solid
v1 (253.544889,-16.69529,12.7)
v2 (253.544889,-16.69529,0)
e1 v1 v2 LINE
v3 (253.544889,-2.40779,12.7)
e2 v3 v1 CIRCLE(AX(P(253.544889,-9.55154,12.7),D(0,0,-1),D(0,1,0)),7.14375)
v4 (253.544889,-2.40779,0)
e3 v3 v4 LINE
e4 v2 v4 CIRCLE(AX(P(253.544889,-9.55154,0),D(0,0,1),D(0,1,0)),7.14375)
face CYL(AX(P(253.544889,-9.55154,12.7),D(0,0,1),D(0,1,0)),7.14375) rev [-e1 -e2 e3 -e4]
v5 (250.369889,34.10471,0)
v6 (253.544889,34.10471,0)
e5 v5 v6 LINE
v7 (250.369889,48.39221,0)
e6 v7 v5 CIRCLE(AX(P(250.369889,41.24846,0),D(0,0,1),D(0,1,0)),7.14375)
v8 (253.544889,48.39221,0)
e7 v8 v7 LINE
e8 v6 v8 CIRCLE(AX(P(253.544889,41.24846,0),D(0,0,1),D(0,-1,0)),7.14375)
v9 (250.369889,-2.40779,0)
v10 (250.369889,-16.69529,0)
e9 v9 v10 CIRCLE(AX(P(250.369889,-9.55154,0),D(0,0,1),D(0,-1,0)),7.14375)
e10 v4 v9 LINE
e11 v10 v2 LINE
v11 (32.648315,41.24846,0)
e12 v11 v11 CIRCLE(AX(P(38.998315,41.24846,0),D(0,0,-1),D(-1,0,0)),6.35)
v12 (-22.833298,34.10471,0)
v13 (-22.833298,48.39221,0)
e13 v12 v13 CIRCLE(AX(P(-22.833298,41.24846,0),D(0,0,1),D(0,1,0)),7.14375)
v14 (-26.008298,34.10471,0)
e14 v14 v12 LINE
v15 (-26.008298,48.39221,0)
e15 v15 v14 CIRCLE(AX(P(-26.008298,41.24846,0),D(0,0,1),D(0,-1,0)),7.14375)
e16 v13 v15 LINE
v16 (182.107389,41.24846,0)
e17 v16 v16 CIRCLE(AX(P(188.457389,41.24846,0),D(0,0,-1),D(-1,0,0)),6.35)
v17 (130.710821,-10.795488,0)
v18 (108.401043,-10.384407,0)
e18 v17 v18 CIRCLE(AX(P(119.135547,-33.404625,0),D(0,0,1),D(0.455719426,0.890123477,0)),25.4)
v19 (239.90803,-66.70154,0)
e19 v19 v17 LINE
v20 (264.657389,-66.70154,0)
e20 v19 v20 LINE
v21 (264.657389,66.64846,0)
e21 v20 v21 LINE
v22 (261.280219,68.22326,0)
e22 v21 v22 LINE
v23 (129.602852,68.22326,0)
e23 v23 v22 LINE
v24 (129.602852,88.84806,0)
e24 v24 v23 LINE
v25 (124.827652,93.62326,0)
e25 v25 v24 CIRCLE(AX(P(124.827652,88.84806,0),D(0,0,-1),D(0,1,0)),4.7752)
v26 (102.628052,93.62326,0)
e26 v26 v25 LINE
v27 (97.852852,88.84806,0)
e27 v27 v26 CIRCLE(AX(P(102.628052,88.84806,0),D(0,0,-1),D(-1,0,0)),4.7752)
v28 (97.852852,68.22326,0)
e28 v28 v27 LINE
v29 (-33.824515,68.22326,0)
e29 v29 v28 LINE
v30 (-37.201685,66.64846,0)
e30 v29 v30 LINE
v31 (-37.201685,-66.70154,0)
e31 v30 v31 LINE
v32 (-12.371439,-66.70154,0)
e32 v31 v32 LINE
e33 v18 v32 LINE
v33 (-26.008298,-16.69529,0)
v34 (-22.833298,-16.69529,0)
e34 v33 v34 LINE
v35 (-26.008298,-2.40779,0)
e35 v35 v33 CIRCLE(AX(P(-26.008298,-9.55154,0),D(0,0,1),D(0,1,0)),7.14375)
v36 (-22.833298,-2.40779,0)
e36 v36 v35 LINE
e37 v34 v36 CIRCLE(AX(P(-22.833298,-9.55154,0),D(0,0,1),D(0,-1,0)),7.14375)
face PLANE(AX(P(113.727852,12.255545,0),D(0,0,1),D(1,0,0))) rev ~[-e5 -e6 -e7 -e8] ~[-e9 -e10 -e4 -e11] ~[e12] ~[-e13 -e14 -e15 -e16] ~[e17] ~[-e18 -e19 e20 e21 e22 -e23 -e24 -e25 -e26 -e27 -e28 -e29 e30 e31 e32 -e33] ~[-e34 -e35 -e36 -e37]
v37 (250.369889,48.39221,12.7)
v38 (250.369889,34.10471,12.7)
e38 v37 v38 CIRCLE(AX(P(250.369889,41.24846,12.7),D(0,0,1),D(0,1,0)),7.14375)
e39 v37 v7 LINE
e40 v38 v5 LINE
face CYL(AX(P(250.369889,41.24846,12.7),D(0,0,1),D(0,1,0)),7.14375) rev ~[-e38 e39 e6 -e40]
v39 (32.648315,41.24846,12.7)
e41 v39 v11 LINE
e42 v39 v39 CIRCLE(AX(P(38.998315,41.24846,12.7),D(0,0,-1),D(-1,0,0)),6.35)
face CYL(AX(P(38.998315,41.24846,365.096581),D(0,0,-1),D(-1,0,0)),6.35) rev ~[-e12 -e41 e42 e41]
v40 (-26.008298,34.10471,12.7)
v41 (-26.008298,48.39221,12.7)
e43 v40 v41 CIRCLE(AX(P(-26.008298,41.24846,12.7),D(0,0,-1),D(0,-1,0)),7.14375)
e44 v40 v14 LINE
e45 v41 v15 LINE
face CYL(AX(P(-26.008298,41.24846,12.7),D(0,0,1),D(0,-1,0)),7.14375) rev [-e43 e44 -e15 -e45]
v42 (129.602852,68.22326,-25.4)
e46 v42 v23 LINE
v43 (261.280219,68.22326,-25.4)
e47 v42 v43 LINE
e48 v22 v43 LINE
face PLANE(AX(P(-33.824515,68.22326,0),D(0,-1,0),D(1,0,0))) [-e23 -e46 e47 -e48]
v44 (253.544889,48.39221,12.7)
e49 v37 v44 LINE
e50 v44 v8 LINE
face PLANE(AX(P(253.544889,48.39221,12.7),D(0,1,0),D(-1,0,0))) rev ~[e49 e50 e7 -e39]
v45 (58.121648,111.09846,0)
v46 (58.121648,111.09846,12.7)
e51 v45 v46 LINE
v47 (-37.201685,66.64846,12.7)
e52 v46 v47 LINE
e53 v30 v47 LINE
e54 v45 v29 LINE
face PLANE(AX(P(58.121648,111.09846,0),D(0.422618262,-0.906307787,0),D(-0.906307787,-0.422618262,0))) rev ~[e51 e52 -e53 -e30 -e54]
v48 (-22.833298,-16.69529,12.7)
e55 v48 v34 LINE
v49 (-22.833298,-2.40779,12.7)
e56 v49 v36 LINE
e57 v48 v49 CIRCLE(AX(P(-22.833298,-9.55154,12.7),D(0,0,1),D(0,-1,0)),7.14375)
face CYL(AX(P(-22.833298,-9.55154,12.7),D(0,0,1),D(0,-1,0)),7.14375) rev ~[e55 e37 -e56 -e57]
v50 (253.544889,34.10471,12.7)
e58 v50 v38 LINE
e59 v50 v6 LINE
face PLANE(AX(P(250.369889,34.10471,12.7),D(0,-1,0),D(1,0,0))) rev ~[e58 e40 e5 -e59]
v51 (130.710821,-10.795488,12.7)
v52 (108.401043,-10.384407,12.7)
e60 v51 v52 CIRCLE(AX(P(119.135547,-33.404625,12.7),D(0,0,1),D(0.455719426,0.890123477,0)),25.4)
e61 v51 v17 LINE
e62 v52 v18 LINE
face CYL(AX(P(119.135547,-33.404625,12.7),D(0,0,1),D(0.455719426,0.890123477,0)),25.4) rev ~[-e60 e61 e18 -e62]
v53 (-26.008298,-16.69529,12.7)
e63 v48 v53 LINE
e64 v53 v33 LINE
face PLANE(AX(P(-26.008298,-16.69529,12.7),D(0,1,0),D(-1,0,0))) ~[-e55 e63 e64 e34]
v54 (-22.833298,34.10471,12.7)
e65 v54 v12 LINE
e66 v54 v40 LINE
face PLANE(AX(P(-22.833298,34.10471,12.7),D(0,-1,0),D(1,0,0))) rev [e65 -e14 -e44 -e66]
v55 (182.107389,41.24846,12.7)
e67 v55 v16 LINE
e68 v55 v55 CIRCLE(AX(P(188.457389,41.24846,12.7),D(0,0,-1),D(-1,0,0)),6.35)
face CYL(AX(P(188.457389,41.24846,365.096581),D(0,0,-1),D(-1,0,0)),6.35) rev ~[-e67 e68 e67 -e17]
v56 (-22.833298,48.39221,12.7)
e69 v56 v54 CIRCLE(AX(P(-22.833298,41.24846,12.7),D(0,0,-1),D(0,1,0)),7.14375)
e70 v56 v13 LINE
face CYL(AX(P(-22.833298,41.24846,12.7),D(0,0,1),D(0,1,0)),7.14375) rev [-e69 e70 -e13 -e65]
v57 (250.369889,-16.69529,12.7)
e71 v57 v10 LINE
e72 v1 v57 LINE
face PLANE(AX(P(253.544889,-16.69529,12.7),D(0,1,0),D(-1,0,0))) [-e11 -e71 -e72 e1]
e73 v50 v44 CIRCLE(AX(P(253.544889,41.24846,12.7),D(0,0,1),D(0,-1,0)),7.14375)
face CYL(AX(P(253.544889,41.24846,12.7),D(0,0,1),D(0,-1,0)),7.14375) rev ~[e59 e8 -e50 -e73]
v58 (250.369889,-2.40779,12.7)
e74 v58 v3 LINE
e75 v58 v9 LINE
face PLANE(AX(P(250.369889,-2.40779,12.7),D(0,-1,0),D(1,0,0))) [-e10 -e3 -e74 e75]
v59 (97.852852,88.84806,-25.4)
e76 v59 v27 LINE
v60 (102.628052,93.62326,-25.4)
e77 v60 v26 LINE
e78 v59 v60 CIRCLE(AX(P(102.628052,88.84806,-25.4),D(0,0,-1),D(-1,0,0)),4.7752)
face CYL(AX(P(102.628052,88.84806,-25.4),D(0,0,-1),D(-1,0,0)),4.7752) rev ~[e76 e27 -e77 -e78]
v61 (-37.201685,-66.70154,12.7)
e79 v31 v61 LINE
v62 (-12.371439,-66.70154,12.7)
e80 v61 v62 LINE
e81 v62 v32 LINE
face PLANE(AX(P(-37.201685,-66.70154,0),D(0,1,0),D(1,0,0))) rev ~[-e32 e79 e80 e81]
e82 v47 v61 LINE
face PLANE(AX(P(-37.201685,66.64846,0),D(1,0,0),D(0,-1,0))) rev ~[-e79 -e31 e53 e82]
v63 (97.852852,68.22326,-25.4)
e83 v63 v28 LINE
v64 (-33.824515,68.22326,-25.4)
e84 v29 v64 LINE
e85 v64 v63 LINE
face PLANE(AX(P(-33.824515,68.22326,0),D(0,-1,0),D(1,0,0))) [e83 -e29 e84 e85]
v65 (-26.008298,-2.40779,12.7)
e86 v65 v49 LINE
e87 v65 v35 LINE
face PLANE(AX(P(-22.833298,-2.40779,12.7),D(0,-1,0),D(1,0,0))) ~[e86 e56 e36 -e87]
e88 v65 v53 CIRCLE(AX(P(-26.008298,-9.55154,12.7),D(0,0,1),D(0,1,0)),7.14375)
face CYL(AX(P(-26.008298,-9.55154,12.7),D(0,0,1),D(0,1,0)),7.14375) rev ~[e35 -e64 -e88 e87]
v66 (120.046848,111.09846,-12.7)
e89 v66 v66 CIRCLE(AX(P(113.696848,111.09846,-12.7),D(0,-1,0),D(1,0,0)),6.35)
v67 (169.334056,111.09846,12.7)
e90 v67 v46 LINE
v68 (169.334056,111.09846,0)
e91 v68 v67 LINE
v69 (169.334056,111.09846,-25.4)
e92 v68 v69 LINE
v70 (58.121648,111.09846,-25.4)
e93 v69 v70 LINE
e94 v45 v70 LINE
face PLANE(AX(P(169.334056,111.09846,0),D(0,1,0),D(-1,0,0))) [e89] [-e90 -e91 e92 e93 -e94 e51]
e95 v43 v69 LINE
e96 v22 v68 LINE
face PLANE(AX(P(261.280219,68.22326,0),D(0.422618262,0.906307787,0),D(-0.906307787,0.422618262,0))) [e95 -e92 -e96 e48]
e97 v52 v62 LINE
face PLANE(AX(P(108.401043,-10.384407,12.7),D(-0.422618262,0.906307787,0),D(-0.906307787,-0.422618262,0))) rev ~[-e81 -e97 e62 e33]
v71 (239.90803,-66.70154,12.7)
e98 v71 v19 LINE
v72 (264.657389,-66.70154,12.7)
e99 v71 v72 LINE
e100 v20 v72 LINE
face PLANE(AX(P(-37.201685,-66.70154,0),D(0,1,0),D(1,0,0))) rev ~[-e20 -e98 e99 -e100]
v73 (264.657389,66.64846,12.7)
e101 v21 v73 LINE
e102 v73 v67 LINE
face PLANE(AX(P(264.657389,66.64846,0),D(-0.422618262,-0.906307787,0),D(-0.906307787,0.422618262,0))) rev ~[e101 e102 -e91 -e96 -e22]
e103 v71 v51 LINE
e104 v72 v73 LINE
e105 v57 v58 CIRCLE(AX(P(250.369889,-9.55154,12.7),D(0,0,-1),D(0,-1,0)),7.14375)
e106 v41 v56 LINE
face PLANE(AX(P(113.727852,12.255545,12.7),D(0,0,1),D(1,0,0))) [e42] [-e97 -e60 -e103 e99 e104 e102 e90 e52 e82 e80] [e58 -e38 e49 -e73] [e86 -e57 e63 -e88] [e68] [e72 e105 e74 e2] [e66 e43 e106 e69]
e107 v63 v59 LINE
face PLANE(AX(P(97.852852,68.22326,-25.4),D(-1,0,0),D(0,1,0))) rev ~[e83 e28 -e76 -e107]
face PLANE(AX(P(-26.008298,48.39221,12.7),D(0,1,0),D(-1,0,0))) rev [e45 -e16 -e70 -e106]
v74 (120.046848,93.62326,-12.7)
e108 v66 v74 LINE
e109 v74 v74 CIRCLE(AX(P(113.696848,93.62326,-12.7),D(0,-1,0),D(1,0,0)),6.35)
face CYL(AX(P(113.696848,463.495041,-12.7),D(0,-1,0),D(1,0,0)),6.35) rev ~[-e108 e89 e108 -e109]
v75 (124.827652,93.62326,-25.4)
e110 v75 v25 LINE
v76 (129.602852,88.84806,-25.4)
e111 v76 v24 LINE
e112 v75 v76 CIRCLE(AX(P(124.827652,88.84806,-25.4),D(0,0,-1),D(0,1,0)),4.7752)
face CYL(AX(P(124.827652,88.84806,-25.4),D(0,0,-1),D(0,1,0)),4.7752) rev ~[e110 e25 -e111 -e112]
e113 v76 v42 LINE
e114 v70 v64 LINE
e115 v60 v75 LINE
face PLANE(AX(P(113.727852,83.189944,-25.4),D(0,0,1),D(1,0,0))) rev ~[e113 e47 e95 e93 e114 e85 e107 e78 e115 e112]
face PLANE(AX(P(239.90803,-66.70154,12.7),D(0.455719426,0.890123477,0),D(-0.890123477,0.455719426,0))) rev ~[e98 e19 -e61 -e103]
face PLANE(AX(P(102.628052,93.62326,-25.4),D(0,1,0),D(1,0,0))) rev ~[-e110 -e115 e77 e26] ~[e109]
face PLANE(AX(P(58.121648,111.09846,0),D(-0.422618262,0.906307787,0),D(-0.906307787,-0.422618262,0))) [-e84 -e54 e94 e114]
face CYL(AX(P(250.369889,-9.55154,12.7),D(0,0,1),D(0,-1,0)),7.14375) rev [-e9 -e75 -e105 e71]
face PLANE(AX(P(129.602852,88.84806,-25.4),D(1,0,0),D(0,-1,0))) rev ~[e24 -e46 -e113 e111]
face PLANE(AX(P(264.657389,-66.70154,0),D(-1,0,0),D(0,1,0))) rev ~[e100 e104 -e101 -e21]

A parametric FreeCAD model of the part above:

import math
import FreeCAD as App
import Part
import Sketcher
Q = App.Units.Quantity


def add_polygon(sketch, points):
    """Adds a closed chain of lines whose ends are joined by coincident constraints."""
    first, n = sketch.GeometryCount, len(points)
    for a, b in zip(points, points[1:] + points[:1]):
        sketch.addGeometry(Part.LineSegment(App.Vector(*a, 0), App.Vector(*b, 0)), False)
    for i in range(n):
        sketch.addConstraint(Sketcher.Constraint("Coincident", first + i, 2, first + (i + 1) % n, 1))

doc = App.newDocument("Part")
body = doc.addObject("PartDesign::Body", "Body")

sketch1 = body.newObject("Sketcher::SketchObject", "Sketch")
sketch1.AttachmentSupport = (doc.getObject("XY_Plane"), [""])
sketch1.MapMode = "FlatFace"
add_polygon(sketch1, [(58, 111), (-37, 67), (-37, -67), (265, -67), (265, 67), (169, 111)])
sketch1.addConstraint(Sketcher.Constraint("Vertical", 1))
sketch1.addConstraint(Sketcher.Constraint("Horizontal", 2))
sketch1.addConstraint(Sketcher.Constraint("Vertical", 3))
sketch1.addConstraint(Sketcher.Constraint("Horizontal", 5))
sketch1.addConstraint(Sketcher.Constraint("Horizontal", 0, 2, 3, 2))
sketch1.addConstraint(Sketcher.Constraint("Equal", 0, 4))
sketch1.addConstraint(Sketcher.Constraint("Angle", 0, Q("-155 deg")))
sketch1.addConstraint(Sketcher.Constraint("DistanceY", 2, 2, 4, 2, Q("7 in")))
sketch1.addConstraint(Sketcher.Constraint("DistanceY", 1, 2, 1, 1, Q("5.25 in")))
sketch1.addConstraint(Sketcher.Constraint("DistanceX", 5, 2, 5, 1, Q("111.212408 mm")))
sketch1.addConstraint(Sketcher.Constraint("DistanceY", -1, 1, 0, 2, Q("66.64846 mm")))
sketch1.addConstraint(Sketcher.Constraint("DistanceX", -1, 1, 2, 2, Q("264.657389 mm")))
pad1 = body.newObject("PartDesign::Pad", "Pad")
pad1.Profile = sketch1
pad1.Length = Q("0.5 in")

sketch2 = body.newObject("Sketcher::SketchObject", "Sketch001")
sketch2.AttachmentSupport = (doc.getObject("XY_Plane"), [""])
sketch2.MapMode = "FlatFace"
sketch2.AttachmentOffset = App.Placement(App.Vector(0, 0, 0.5 * 25.4), App.Rotation())
sketch2.addGeometry(Part.Circle(App.Vector(252, -10, 0), App.Vector(0, 0, 1), 7), False)
sketch2.addGeometry(Part.Circle(App.Vector(252, 41, 0), App.Vector(0, 0, 1), 7), False)
sketch2.addConstraint(Sketcher.Constraint("Equal", 0, 1))
sketch2.addConstraint(Sketcher.Constraint("Vertical", 0, 3, 1, 3))
sketch2.addConstraint(Sketcher.Constraint("Diameter", 0, Q("0.5625 in")))
sketch2.addConstraint(Sketcher.Constraint("DistanceY", 0, 3, 1, 3, Q("2 in")))
sketch2.addConstraint(Sketcher.Constraint("DistanceX", -1, 1, 0, 3, Q("251.957389 mm")))
sketch2.addConstraint(Sketcher.Constraint("DistanceY", 0, 3, -1, 1, Q("9.55154 mm")))
doc.recompute()
hole = body.newObject("PartDesign::Hole", "Hole")
hole.Profile = sketch2
hole.ThreadType = "None"
hole.Diameter = Q("0.5625 in")
hole.DepthType = "ThroughAll"

sketch3 = body.newObject("Sketcher::SketchObject", "Sketch002")
sketch3.AttachmentSupport = (doc.getObject("XY_Plane"), [""])
sketch3.MapMode = "FlatFace"
sketch3.AttachmentOffset = App.Placement(App.Vector(0, 0, 0.5 * 25.4), App.Rotation())
sketch3.addGeometry(Part.LineSegment(App.Vector(-12, -67, 0), App.Vector(240, -67, 0)), False)
sketch3.addGeometry(Part.LineSegment(App.Vector(240, -67, 0), App.Vector(131, -11, 0)), False)
sketch3.addGeometry(Part.ArcOfCircle(Part.Circle(App.Vector(119, -33, 0), App.Vector(0, 0, 1), 25), math.radians(63), math.radians(115)), False)
sketch3.addGeometry(Part.LineSegment(App.Vector(108, -10, 0), App.Vector(-12, -67, 0)), False)
sketch3.addConstraint(Sketcher.Constraint("Coincident", 0, 2, 1, 1))
sketch3.addConstraint(Sketcher.Constraint("Tangent", 1, 2, 2, 1))
sketch3.addConstraint(Sketcher.Constraint("Tangent", 2, 2, 3, 1))
sketch3.addConstraint(Sketcher.Constraint("Coincident", 3, 2, 0, 1))
sketch3.addConstraint(Sketcher.Constraint("Horizontal", 0))
sketch3.addConstraint(Sketcher.Constraint("Radius", 2, Q("1 in")))
sketch3.addConstraint(Sketcher.Constraint("Angle", 3, Q("-155 deg")))
sketch3.addConstraint(Sketcher.Constraint("DistanceX", 0, 1, 0, 2, Q("252.279469 mm")))
sketch3.addConstraint(Sketcher.Constraint("Distance", 3, Q("133.25769 mm")))
sketch3.addConstraint(Sketcher.Constraint("DistanceX", -1, 1, 0, 2, Q("239.90803 mm")))
sketch3.addConstraint(Sketcher.Constraint("DistanceY", 0, 2, -1, 1, Q("66.70154 mm")))
pocket1 = body.newObject("PartDesign::Pocket", "Pocket")
pocket1.Profile = sketch3
pocket1.Type = "ThroughAll"
doc.recompute()

datumplane = body.newObject("PartDesign::Plane", "DatumPlane")
datumplane.AttachmentSupport = (doc.getObject("YZ_Plane"), [""])
datumplane.MapMode = "FlatFace"
datumplane.AttachmentOffset = App.Placement(App.Vector(0, 0, 113.768295), App.Rotation())
mirrored = body.newObject("PartDesign::Mirrored", "Mirrored")
mirrored.Originals = [hole]
mirrored.MirrorPlane = (datumplane, [""])
body.Tip = mirrored

sketch4 = body.newObject("Sketcher::SketchObject", "Sketch003")
sketch4.AttachmentSupport = (doc.getObject("XY_Plane"), [""])
sketch4.MapMode = "FlatFace"
add_polygon(sketch4, [(58, 111), (169, 111), (261, 68), (-34, 68)])
sketch4.addConstraint(Sketcher.Constraint("Horizontal", 0))
sketch4.addConstraint(Sketcher.Constraint("Horizontal", 2))
sketch4.addConstraint(Sketcher.Constraint("Equal", 1, 3))
sketch4.addConstraint(Sketcher.Constraint("Angle", 1, Q("-25 deg")))
sketch4.addConstraint(Sketcher.Constraint("DistanceY", 1, 2, 0, 2, Q("1.688 in")))
sketch4.addConstraint(Sketcher.Constraint("DistanceX", 0, 1, 0, 2, Q("111.212408 mm")))
sketch4.addConstraint(Sketcher.Constraint("DistanceY", -1, 1, 0, 2, Q("111.09846 mm")))
sketch4.addConstraint(Sketcher.Constraint("DistanceX", -1, 1, 1, 2, Q("261.280219 mm")))
pad2 = body.newObject("PartDesign::Pad", "Pad001")
pad2.Profile = sketch4
pad2.Length = Q("1 in")
pad2.Reversed = True

sketch5 = body.newObject("Sketcher::SketchObject", "Sketch004")
sketch5.AttachmentSupport = (doc.getObject("XZ_Plane"), [""])
sketch5.MapMode = "FlatFace"
sketch5.AttachmentOffset = App.Placement(App.Vector(0, 0, -111.09846), App.Rotation())
sketch5.addGeometry(Part.Circle(App.Vector(114, -13, 0), App.Vector(0, 0, 1), 6), False)
sketch5.addConstraint(Sketcher.Constraint("Diameter", 0, Q("0.5 in")))
sketch5.addConstraint(Sketcher.Constraint("DistanceY", 0, 3, -1, 1, Q("0.5 in")))
sketch5.addConstraint(Sketcher.Constraint("DistanceX", -1, 1, 0, 3, Q("113.696848 mm")))
doc.recompute()
hole2 = body.newObject("PartDesign::Hole", "Hole001")
hole2.Profile = sketch5
hole2.ThreadType = "None"
hole2.Diameter = Q("0.5 in")
hole2.DepthType = "ThroughAll"
hole2.Reversed = True

sketch6 = body.newObject("Sketcher::SketchObject", "Sketch005")
sketch6.AttachmentSupport = (doc.getObject("XY_Plane"), [""])
sketch6.MapMode = "FlatFace"
sketch6.AttachmentOffset = App.Placement(App.Vector(0, 0, 0.5 * 25.4), App.Rotation())
sketch6.addGeometry(Part.LineSegment(App.Vector(253.5, -2.4, 0), App.Vector(250.4, -2.4, 0)), False)
sketch6.addGeometry(Part.ArcOfCircle(Part.Circle(App.Vector(250.4, -9.6, 0), App.Vector(0, 0, 1), 7.1), math.radians(90), math.radians(270)), False)
sketch6.addGeometry(Part.LineSegment(App.Vector(250.4, -16.7, 0), App.Vector(253.5, -16.7, 0)), False)
sketch6.addGeometry(Part.ArcOfCircle(Part.Circle(App.Vector(253.5, -9.6, 0), App.Vector(0, 0, 1), 7.1), math.radians(-90), math.radians(90)), False)
sketch6.addConstraint(Sketcher.Constraint("Tangent", 0, 2, 1, 1))
sketch6.addConstraint(Sketcher.Constraint("Tangent", 1, 2, 2, 1))
sketch6.addConstraint(Sketcher.Constraint("Tangent", 2, 2, 3, 1))
sketch6.addConstraint(Sketcher.Constraint("Tangent", 3, 2, 0, 1))
sketch6.addConstraint(Sketcher.Constraint("Horizontal", 0))
sketch6.addConstraint(Sketcher.Constraint("Horizontal", 2))
sketch6.addConstraint(Sketcher.Constraint("Radius", 1, Q("0.28125 in")))
sketch6.addConstraint(Sketcher.Constraint("DistanceX", 0, 2, 0, 1, Q("0.125 in")))
sketch6.addConstraint(Sketcher.Constraint("DistanceX", -1, 1, 1, 3, Q("250.369889 mm")))
sketch6.addConstraint(Sketcher.Constraint("DistanceY", 1, 3, -1, 1, Q("9.55154 mm")))
pocket2 = body.newObject("PartDesign::Pocket", "Pocket001")
pocket2.Profile = sketch6
pocket2.Type = "ThroughAll"

sketch7 = body.newObject("Sketcher::SketchObject", "Sketch006")
sketch7.AttachmentSupport = (doc.getObject("XY_Plane"), [""])
sketch7.MapMode = "FlatFace"
sketch7.AttachmentOffset = App.Placement(App.Vector(0, 0, 0.5 * 25.4), App.Rotation())
sketch7.addGeometry(Part.LineSegment(App.Vector(253.5, 48.4, 0), App.Vector(250.4, 48.4, 0)), False)
sketch7.addGeometry(Part.ArcOfCircle(Part.Circle(App.Vector(250.4, 41.2, 0), App.Vector(0, 0, 1), 7.1), math.radians(90), math.radians(270)), False)
sketch7.addGeometry(Part.LineSegment(App.Vector(250.4, 34.1, 0), App.Vector(253.5, 34.1, 0)), False)
sketch7.addGeometry(Part.ArcOfCircle(Part.Circle(App.Vector(253.5, 41.2, 0), App.Vector(0, 0, 1), 7.1), math.radians(-90), math.radians(90)), False)
sketch7.addConstraint(Sketcher.Constraint("Tangent", 0, 2, 1, 1))
sketch7.addConstraint(Sketcher.Constraint("Tangent", 1, 2, 2, 1))
sketch7.addConstraint(Sketcher.Constraint("Tangent", 2, 2, 3, 1))
sketch7.addConstraint(Sketcher.Constraint("Tangent", 3, 2, 0, 1))
sketch7.addConstraint(Sketcher.Constraint("Horizontal", 0))
sketch7.addConstraint(Sketcher.Constraint("Horizontal", 2))
sketch7.addConstraint(Sketcher.Constraint("Radius", 1, Q("0.28125 in")))
sketch7.addConstraint(Sketcher.Constraint("DistanceX", 0, 2, 0, 1, Q("0.125 in")))
sketch7.addConstraint(Sketcher.Constraint("DistanceX", -1, 1, 1, 3, Q("250.369889 mm")))
sketch7.addConstraint(Sketcher.Constraint("DistanceY", -1, 1, 1, 3, Q("41.24846 mm")))
pocket3 = body.newObject("PartDesign::Pocket", "Pocket002")
pocket3.Profile = sketch7
pocket3.Type = "ThroughAll"
doc.recompute()

datumplane2 = body.newObject("PartDesign::Plane", "DatumPlane001")
datumplane2.AttachmentSupport = (doc.getObject("YZ_Plane"), [""])
datumplane2.MapMode = "FlatFace"
datumplane2.AttachmentOffset = App.Placement(App.Vector(0, 0, 113.768295), App.Rotation())
mirrored2 = body.newObject("PartDesign::Mirrored", "Mirrored001")
mirrored2.Originals = [pocket2, pocket3]
mirrored2.MirrorPlane = (datumplane2, [""])
body.Tip = mirrored2

sketch8 = body.newObject("Sketcher::SketchObject", "Sketch007")
sketch8.AttachmentSupport = (doc.getObject("XY_Plane"), [""])
sketch8.MapMode = "FlatFace"
sketch8.AttachmentOffset = App.Placement(App.Vector(0, 0, 0.5 * 25.4), App.Rotation())
sketch8.addGeometry(Part.Circle(App.Vector(39, 41, 0), App.Vector(0, 0, 1), 6), False)
sketch8.addGeometry(Part.Circle(App.Vector(188, 41, 0), App.Vector(0, 0, 1), 6), False)
sketch8.addConstraint(Sketcher.Constraint("Equal", 0, 1))
sketch8.addConstraint(Sketcher.Constraint("Horizontal", 0, 3, 1, 3))
sketch8.addConstraint(Sketcher.Constraint("Diameter", 0, Q("0.5 in")))
sketch8.addConstraint(Sketcher.Constraint("DistanceY", -1, 1, 0, 3, Q("41.24846 mm")))
sketch8.addConstraint(Sketcher.Constraint("DistanceX", -1, 1, 1, 3, Q("188.457389 mm")))
sketch8.addConstraint(Sketcher.Constraint("DistanceX", -1, 1, 0, 3, Q("38.998315 mm")))
doc.recompute()
hole3 = body.newObject("PartDesign::Hole", "Hole002")
hole3.Profile = sketch8
hole3.ThreadType = "None"
hole3.Diameter = Q("0.5 in")
hole3.DepthType = "ThroughAll"

sketch9 = body.newObject("Sketcher::SketchObject", "Sketch008")
sketch9.AttachmentSupport = (doc.getObject("XY_Plane"), [""])
sketch9.MapMode = "FlatFace"
sketch9.AttachmentOffset = App.Placement(App.Vector(0, 0, -1 * 25.4), App.Rotation())
sketch9.addGeometry(Part.LineSegment(App.Vector(129.6, 68.2, 0), App.Vector(97.9, 68.2, 0)), False)
sketch9.addGeometry(Part.LineSegment(App.Vector(97.9, 68.2, 0), App.Vector(97.9, 88.8, 0)), False)
sketch9.addGeometry(Part.ArcOfCircle(Part.Circle(App.Vector(102.6, 88.8, 0), App.Vector(0, 0, 1), 4.8), math.radians(90), math.radians(180)), False)
sketch9.addGeometry(Part.LineSegment(App.Vector(102.6, 93.6, 0), App.Vector(124.8, 93.6, 0)), False)
sketch9.addGeometry(Part.ArcOfCircle(Part.Circle(App.Vector(124.8, 88.8, 0), App.Vector(0, 0, 1), 4.8), math.radians(0), math.radians(90)), False)
sketch9.addGeometry(Part.LineSegment(App.Vector(129.6, 88.8, 0), App.Vector(129.6, 68.2, 0)), False)
sketch9.addConstraint(Sketcher.Constraint("Coincident", 0, 2, 1, 1))
sketch9.addConstraint(Sketcher.Constraint("Tangent", 1, 2, 2, 2))
sketch9.addConstraint(Sketcher.Constraint("Tangent", 2, 1, 3, 1))
sketch9.addConstraint(Sketcher.Constraint("Tangent", 3, 2, 4, 2))
sketch9.addConstraint(Sketcher.Constraint("Tangent", 4, 1, 5, 1))
sketch9.addConstraint(Sketcher.Constraint("Coincident", 5, 2, 0, 1))
sketch9.addConstraint(Sketcher.Constraint("Horizontal", 0))
sketch9.addConstraint(Sketcher.Constraint("Vertical", 1))
sketch9.addConstraint(Sketcher.Constraint("Horizontal", 3))
sketch9.addConstraint(Sketcher.Constraint("Vertical", 5))
sketch9.addConstraint(Sketcher.Constraint("Equal", 2, 4))
sketch9.addConstraint(Sketcher.Constraint("Radius", 2, Q("0.188 in")))
sketch9.addConstraint(Sketcher.Constraint("DistanceY", 0, 2, 2, 1, Q("1 in")))
sketch9.addConstraint(Sketcher.Constraint("DistanceX", 0, 2, 0, 1, Q("1.25 in")))
sketch9.addConstraint(Sketcher.Constraint("DistanceY", -1, 1, 2, 3, Q("88.84806 mm")))
sketch9.addConstraint(Sketcher.Constraint("DistanceX", -1, 1, 2, 3, Q("102.628052 mm")))
pocket4 = body.newObject("PartDesign::Pocket", "Pocket003")
pocket4.Profile = sketch9
pocket4.Length = Q("1 in")
pocket4.Reversed = True

doc.recompute()
